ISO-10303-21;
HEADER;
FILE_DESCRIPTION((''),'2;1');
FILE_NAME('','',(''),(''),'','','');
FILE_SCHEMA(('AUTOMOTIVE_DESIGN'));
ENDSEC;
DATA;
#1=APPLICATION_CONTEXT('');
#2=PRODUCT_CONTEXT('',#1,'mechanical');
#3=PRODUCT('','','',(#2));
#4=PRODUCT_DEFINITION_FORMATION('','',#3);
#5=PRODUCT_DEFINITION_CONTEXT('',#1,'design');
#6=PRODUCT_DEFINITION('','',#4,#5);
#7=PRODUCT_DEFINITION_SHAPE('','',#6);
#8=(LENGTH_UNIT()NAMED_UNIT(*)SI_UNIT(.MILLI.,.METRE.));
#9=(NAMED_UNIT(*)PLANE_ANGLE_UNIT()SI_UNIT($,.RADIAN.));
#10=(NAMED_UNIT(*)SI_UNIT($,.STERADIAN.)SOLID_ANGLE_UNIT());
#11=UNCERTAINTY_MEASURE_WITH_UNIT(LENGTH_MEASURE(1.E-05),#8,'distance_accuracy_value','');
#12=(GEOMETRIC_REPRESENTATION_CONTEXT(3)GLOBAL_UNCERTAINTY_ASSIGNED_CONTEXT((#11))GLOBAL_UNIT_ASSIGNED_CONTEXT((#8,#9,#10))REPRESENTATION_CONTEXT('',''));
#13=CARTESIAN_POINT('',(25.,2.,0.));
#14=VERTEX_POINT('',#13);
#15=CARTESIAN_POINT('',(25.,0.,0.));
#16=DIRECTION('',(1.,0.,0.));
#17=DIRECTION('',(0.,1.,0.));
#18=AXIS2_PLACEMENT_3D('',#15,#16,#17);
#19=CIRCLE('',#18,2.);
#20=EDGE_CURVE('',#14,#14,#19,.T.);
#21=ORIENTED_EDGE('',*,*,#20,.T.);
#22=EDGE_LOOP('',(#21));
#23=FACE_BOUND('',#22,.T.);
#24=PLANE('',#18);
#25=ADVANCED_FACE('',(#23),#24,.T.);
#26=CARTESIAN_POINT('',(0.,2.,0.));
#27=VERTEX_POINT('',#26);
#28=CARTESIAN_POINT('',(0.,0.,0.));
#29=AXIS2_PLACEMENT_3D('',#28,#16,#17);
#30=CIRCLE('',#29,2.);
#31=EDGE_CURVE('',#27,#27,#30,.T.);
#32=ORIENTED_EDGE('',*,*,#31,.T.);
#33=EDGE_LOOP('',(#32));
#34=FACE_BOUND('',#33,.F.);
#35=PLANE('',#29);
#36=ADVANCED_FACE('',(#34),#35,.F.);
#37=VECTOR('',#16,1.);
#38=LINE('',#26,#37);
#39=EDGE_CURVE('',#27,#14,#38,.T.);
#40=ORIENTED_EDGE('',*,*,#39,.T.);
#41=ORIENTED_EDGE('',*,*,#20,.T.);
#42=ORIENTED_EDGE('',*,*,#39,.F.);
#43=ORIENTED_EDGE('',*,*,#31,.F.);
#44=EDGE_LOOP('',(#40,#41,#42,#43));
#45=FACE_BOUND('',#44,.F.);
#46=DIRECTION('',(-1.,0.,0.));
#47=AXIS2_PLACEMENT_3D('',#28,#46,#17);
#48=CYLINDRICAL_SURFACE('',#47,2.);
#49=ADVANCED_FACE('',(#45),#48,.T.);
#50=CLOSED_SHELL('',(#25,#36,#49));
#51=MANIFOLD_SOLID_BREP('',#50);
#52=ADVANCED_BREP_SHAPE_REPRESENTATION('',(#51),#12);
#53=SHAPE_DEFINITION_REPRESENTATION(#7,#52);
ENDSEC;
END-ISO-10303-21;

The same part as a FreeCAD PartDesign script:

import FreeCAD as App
import Part
import Sketcher

V = App.Vector
Q = App.Units.Quantity

doc = App.newDocument("Part")
params = doc.addObject("Spreadsheet::Sheet", "Params")
for row, (alias, value) in enumerate([
    ("sketch1_diameter", "4 mm"),
    ("pad1_length", "25 mm"),
], start=1):
    params.set(f"A{row}", alias)
    params.set(f"B{row}", "=" + value)
    params.setAlias(f"B{row}", alias)

body = doc.addObject("PartDesign::Body", "Body")

# Sketch on YZ plane
sketch1 = doc.addObject("Sketcher::SketchObject", "Sketch")
body.addObject(sketch1)
sketch1.AttachmentSupport = (doc.YZ_Plane, [""])
sketch1.MapMode = "FlatFace"
sketch1.addGeometry(Part.Circle(V(0, 0, 0), V(0, 0, 1), 2), False)
sketch1.addConstraint([
    Sketcher.Constraint("Coincident", 0, 3, -1, 1),
    Sketcher.Constraint("Diameter", 0, Q("4 mm")),
])
sketch1.setExpression("Constraints[1]", "Params.sketch1_diameter")
pad1 = doc.addObject("PartDesign::Pad", "Pad")
body.addObject(pad1)
pad1.Profile = sketch1
pad1.setExpression("Length", "Params.pad1_length")

doc.recompute()
